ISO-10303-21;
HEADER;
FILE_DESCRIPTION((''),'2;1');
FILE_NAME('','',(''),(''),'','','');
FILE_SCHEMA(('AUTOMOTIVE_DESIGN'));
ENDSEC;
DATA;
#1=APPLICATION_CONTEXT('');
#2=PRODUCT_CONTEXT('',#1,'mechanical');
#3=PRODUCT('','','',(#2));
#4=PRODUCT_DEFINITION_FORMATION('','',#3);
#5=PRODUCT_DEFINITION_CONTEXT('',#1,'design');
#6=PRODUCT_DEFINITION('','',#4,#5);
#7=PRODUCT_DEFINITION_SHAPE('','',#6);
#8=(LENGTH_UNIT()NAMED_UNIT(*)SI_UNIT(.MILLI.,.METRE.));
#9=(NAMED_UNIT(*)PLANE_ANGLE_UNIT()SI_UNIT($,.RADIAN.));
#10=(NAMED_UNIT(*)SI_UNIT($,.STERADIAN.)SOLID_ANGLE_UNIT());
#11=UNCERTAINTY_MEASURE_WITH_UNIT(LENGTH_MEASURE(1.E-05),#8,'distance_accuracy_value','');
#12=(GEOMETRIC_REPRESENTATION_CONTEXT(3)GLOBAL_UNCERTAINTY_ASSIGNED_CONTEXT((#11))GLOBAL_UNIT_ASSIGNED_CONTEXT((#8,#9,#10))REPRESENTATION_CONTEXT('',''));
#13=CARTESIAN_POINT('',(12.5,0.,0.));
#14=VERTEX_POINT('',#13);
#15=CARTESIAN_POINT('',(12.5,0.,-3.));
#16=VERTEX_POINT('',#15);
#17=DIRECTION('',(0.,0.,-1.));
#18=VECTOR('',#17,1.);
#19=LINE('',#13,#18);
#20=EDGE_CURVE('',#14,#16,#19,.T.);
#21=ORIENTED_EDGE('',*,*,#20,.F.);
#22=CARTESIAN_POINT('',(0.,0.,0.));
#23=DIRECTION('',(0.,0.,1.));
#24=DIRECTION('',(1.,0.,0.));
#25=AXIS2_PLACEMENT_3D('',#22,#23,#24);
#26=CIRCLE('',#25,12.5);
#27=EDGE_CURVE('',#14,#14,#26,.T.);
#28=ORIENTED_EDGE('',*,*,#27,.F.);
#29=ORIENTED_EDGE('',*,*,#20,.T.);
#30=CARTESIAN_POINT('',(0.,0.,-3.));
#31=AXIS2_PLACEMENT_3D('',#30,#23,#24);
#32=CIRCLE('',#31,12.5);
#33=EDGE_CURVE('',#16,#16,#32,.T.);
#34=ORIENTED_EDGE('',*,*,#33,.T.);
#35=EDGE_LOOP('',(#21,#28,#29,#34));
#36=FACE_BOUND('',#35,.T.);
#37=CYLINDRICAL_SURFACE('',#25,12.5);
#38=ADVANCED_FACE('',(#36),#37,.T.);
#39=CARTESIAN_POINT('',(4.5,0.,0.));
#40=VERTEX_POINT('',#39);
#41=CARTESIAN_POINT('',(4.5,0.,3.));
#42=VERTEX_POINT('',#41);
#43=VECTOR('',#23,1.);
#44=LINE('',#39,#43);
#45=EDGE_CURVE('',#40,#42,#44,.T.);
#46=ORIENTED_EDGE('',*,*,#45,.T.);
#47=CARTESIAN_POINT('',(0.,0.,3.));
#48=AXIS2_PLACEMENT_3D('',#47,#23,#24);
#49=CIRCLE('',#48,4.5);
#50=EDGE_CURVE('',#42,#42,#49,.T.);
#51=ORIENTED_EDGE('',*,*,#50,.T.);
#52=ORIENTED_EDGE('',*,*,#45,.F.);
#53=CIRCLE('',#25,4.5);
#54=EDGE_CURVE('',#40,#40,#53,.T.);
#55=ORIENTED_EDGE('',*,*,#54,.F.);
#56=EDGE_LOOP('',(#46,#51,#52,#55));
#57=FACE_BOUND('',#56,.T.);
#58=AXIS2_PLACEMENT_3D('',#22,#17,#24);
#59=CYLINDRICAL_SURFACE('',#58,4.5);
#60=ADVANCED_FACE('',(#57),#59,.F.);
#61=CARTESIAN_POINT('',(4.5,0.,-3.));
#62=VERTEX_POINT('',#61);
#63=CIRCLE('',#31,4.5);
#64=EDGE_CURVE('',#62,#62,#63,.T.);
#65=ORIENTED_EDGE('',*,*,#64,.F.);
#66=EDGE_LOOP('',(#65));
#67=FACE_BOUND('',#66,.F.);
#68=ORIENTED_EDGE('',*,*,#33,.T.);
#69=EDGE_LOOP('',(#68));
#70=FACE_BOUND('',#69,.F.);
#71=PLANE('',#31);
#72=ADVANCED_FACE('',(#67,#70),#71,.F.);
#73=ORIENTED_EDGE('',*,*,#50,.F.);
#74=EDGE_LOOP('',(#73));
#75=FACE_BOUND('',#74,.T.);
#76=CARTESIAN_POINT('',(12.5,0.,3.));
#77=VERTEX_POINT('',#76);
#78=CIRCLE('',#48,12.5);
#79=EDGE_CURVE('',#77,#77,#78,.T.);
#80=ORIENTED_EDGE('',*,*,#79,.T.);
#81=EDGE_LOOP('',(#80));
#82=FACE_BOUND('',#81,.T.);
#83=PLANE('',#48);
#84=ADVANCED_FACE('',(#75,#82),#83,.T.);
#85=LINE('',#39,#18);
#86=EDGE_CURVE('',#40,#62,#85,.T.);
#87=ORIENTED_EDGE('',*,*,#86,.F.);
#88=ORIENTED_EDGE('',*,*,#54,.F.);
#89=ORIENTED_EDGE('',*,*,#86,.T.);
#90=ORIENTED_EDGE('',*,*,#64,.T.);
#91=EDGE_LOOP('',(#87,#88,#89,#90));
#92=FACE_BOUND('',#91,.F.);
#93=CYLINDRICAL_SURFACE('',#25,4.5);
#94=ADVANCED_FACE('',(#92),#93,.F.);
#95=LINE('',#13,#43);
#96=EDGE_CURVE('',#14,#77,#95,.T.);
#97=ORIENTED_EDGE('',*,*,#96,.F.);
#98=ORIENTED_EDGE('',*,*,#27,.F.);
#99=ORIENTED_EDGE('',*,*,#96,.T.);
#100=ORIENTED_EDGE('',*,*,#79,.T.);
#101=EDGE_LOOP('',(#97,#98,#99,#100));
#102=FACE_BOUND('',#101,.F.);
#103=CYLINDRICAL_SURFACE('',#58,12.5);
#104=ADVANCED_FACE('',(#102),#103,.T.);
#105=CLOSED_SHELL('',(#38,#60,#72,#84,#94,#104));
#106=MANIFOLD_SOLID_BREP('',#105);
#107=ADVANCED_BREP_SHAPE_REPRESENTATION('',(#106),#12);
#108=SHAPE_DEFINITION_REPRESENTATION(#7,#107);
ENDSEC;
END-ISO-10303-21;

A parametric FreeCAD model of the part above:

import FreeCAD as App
import Part
import Sketcher

V = App.Vector
Q = App.Units.Quantity

doc = App.newDocument("Part")
body = doc.addObject("PartDesign::Body", "Body")

sketch1 = doc.addObject("Sketcher::SketchObject", "Sketch")
body.addObject(sketch1)
sketch1.AttachmentSupport = (doc.XY_Plane, [""])
sketch1.MapMode = "FlatFace"
sketch1.addGeometry(Part.Circle(V(0, 0, 0), V(0, 0, 1), 12.5), False)
sketch1.addGeometry(Part.Circle(V(0, 0, 0), V(0, 0, 1), 4.5), False)
sketch1.addConstraint(Sketcher.Constraint("Coincident", 0, 3, -1, 1))
sketch1.addConstraint(Sketcher.Constraint("Coincident", 1, 3, -1, 1))
sketch1.addConstraint(Sketcher.Constraint("Diameter", 1, Q("9 mm")))
sketch1.addConstraint(Sketcher.Constraint("Diameter", 0, Q("25 mm")))
pad1 = doc.addObject("PartDesign::Pad", "Pad")
body.addObject(pad1)
pad1.Profile = sketch1
pad1.Length = 6
pad1.Midplane = True

doc.recompute()
